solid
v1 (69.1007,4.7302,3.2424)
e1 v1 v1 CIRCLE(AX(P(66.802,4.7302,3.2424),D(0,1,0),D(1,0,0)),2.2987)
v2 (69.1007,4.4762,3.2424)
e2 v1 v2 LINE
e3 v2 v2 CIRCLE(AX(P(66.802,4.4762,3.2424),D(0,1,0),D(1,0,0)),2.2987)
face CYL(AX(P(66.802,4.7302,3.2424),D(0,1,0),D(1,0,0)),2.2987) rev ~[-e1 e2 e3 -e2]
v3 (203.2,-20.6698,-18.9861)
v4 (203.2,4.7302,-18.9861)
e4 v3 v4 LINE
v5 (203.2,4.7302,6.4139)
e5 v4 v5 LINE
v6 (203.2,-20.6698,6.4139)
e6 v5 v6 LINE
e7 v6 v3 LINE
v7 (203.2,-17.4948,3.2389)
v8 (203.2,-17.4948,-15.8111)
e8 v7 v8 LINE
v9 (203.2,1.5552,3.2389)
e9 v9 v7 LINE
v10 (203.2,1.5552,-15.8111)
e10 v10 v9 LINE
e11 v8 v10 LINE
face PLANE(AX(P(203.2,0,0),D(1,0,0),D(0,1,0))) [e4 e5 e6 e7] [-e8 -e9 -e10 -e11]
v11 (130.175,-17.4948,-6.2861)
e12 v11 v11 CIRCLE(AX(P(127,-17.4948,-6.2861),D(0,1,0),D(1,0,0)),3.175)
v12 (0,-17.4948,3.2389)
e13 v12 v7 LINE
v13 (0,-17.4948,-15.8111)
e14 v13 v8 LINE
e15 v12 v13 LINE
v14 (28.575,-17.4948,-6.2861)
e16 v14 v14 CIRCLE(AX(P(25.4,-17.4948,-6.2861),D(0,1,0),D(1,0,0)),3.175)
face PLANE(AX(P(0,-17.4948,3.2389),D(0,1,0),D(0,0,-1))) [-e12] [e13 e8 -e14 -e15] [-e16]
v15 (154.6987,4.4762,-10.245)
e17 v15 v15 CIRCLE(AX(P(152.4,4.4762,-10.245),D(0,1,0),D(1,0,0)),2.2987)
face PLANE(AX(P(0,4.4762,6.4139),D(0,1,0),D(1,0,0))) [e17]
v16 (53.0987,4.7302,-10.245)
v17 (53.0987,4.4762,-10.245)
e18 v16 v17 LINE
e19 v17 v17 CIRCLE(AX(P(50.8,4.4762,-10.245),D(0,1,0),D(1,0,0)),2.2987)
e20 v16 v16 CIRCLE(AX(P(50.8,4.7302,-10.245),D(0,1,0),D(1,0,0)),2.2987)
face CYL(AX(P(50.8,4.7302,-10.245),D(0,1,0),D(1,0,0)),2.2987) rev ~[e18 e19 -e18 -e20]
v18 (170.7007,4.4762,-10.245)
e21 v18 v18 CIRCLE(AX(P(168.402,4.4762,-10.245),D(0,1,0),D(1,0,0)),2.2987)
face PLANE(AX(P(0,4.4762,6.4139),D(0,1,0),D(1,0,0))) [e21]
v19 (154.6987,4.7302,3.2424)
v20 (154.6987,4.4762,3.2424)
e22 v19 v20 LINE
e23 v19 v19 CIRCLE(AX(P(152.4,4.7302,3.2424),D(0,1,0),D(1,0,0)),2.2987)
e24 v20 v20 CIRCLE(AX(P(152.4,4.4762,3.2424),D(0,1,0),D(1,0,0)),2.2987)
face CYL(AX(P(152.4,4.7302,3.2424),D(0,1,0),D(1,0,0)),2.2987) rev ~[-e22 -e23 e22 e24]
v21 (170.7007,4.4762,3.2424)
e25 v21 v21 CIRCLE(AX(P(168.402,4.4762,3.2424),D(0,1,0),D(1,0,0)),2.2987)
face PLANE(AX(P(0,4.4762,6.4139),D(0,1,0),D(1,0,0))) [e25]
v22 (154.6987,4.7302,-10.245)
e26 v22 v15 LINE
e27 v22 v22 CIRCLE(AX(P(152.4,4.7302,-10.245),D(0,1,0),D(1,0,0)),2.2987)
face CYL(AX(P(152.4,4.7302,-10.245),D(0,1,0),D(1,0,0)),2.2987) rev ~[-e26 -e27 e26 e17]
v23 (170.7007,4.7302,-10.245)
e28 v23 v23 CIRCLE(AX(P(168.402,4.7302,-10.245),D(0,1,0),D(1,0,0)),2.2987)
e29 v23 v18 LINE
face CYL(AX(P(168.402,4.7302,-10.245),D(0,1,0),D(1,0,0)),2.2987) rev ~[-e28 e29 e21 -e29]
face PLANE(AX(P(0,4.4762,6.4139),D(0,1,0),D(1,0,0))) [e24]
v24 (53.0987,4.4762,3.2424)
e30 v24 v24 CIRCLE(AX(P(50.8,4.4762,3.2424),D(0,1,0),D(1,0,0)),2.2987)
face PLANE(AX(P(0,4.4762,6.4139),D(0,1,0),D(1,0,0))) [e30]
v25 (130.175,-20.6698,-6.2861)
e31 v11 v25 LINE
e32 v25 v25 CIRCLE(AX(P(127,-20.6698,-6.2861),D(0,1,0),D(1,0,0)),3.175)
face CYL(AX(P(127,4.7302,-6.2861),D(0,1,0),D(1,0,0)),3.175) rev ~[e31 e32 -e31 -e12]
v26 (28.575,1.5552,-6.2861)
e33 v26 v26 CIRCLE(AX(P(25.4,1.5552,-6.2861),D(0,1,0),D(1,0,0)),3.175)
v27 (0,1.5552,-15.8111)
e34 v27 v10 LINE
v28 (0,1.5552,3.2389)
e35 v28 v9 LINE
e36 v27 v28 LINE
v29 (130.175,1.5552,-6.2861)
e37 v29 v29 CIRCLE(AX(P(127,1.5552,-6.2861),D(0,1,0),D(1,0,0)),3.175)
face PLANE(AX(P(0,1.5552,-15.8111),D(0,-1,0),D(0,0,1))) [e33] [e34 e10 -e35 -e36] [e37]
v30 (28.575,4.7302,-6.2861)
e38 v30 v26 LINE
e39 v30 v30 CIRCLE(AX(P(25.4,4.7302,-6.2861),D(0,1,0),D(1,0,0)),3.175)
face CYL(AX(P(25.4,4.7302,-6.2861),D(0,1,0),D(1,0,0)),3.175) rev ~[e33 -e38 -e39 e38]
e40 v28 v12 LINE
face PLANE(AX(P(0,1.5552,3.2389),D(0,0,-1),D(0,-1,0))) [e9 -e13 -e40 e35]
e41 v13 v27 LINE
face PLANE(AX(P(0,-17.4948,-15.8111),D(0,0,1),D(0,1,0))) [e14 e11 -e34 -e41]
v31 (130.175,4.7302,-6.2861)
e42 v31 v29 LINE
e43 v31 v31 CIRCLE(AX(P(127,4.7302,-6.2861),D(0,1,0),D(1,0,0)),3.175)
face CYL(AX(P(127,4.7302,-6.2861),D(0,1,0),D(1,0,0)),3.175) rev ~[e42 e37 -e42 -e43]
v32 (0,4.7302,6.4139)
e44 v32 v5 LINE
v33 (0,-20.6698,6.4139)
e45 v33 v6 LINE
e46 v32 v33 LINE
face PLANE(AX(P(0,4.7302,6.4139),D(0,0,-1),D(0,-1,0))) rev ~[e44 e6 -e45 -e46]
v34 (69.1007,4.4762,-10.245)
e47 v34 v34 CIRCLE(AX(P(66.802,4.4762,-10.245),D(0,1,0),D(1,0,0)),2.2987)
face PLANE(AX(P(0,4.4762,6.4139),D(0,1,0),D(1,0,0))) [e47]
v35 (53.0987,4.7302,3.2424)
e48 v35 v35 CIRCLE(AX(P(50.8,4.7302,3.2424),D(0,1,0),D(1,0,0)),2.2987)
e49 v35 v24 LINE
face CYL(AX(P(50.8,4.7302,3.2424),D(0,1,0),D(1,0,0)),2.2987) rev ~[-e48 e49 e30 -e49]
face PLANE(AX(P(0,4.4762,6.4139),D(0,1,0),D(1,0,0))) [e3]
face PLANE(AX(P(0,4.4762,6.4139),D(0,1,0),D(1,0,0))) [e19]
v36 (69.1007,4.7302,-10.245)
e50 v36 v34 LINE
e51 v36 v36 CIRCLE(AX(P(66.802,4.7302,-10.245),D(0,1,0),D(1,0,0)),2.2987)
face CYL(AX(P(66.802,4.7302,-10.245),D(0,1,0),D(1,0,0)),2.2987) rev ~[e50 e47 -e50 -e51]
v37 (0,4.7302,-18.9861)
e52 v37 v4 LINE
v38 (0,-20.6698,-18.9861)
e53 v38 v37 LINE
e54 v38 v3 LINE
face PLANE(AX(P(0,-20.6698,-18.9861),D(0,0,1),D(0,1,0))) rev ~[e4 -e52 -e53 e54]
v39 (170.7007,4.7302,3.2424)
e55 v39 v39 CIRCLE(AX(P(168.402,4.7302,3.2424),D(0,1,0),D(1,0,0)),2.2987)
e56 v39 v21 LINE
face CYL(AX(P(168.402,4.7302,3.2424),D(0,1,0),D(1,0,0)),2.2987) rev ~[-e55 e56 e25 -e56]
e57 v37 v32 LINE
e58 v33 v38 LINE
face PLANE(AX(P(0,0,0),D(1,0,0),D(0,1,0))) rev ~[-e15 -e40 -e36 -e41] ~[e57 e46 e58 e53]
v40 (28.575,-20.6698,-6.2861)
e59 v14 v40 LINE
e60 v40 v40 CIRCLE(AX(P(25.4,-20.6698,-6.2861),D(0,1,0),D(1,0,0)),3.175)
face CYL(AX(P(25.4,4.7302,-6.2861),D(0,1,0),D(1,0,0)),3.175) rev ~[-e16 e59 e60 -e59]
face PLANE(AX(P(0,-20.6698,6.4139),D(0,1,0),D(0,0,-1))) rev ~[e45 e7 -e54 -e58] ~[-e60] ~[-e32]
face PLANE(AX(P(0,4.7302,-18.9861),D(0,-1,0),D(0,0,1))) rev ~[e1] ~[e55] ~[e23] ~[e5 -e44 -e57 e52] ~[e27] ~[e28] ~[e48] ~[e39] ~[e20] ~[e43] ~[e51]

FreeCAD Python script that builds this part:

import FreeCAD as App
import Part
import Sketcher
Q = App.Units.Quantity


def add_polygon(sketch, points):
    """Adds a closed chain of lines whose ends are joined by coincident constraints."""
    first, n = sketch.GeometryCount, len(points)
    for a, b in zip(points, points[1:] + points[:1]):
        sketch.addGeometry(Part.LineSegment(App.Vector(*a, 0), App.Vector(*b, 0)), False)
    for i in range(n):
        sketch.addConstraint(Sketcher.Constraint("Coincident", first + i, 2, first + (i + 1) % n, 1))

doc = App.newDocument("Part")
body = doc.addObject("PartDesign::Body", "Body")

# Sketch on YZ plane
sketch1 = body.newObject("Sketcher::SketchObject", "Sketch")
sketch1.AttachmentSupport = (doc.getObject("YZ_Plane"), [""])
sketch1.MapMode = "FlatFace"
add_polygon(sketch1, [(5, -19), (5, 6), (-21, 6), (-21, -19)])  # lines 0-3
add_polygon(sketch1, [(-17, 3), (2, 3), (2, -16), (-17, -16)])  # lines 4-7
sketch1.addConstraint([
    Sketcher.Constraint("Vertical", 0),
    Sketcher.Constraint("Horizontal", 1),
    Sketcher.Constraint("Vertical", 2),
    Sketcher.Constraint("Horizontal", 3),
    Sketcher.Constraint("Horizontal", 4),
    Sketcher.Constraint("Vertical", 5),
    Sketcher.Constraint("Horizontal", 6),
    Sketcher.Constraint("Vertical", 7),
    Sketcher.Constraint("Equal", 3, 0),
    Sketcher.Constraint("Equal", 6, 5),
    Sketcher.Constraint("DistanceX", 1, 2, 1, 1, Q("1 in")),
    Sketcher.Constraint("DistanceX", 4, 2, 0, 2, Q("0.125 in")),
    Sketcher.Constraint("DistanceY", 4, 2, 0, 2, Q("0.125 in")),
    Sketcher.Constraint("DistanceY", 3, 2, 5, 2, Q("0.125 in")),
    Sketcher.Constraint("DistanceX", -1, 1, 0, 2, Q("4.7302 mm")),
    Sketcher.Constraint("DistanceY", -1, 1, 0, 2, Q("6.414 mm")),
])
pad1 = body.newObject("PartDesign::Pad", "Pad")
pad1.Profile = sketch1
pad1.Length = Q("8 in")

# Sketch on XZ plane
sketch2 = body.newObject("Sketcher::SketchObject", "Sketch001")
sketch2.AttachmentSupport = (doc.getObject("XZ_Plane"), [""])
sketch2.MapMode = "FlatFace"
sketch2.AttachmentOffset = App.Placement(App.Vector(0, 0, -4.7302), App.Rotation())
sketch2.addGeometry([
    Part.Circle(App.Vector(25.4, -6.3, 0), App.Vector(0, 0, 1), 3.2),
    Part.Circle(App.Vector(127, -6.3, 0), App.Vector(0, 0, 1), 3.2),
], False)
sketch2.addConstraint([
    Sketcher.Constraint("Equal", 0, 1),
    Sketcher.Constraint("Horizontal", 0, 3, 1, 3),
    Sketcher.Constraint("Diameter", 0, Q("0.25 in")),
    Sketcher.Constraint("DistanceX", -1, 1, 0, 3, Q("1 in")),
    Sketcher.Constraint("DistanceX", -1, 1, 1, 3, Q("5 in")),
    Sketcher.Constraint("DistanceY", 0, 3, -1, 1, Q("6.286 mm")),
])
pocket1 = body.newObject("PartDesign::Pocket", "Pocket")
pocket1.Profile = sketch2
pocket1.Length = Q("8 in")
pocket1.Reversed = True

# Sketch on XZ plane
sketch3 = body.newObject("Sketcher::SketchObject", "Sketch002")
sketch3.AttachmentSupport = (doc.getObject("XZ_Plane"), [""])
sketch3.MapMode = "FlatFace"
sketch3.AttachmentOffset = App.Placement(App.Vector(0, 0, -4.7302), App.Rotation())
sketch3.addGeometry([
    Part.Circle(App.Vector(66.8, -10.2, 0), App.Vector(0, 0, 1), 2.3),  # 0
    Part.Circle(App.Vector(66.8, 3.2, 0), App.Vector(0, 0, 1), 2.3),  # 1
    Part.Circle(App.Vector(50.8, 3.2, 0), App.Vector(0, 0, 1), 2.3),  # 2
    Part.Circle(App.Vector(152.4, -10.2, 0), App.Vector(0, 0, 1), 2.3),  # 3
    Part.Circle(App.Vector(152.4, 3.2, 0), App.Vector(0, 0, 1), 2.3),  # 4
    Part.Circle(App.Vector(168.4, 3.2, 0), App.Vector(0, 0, 1), 2.3),  # 5
    Part.Circle(App.Vector(168.4, -10.2, 0), App.Vector(0, 0, 1), 2.3),  # 6
    Part.Circle(App.Vector(50.8, -10.2, 0), App.Vector(0, 0, 1), 2.3),  # 7
], False)
sketch3.addConstraint([
    Sketcher.Constraint("Equal", 0, 1),
    Sketcher.Constraint("Equal", 1, 2),
    Sketcher.Constraint("Equal", 2, 3),
    Sketcher.Constraint("Equal", 3, 4),
    Sketcher.Constraint("Equal", 4, 5),
    Sketcher.Constraint("Equal", 5, 6),
    Sketcher.Constraint("Equal", 6, 7),
    Sketcher.Constraint("Horizontal", 1, 3, 2, 3),
    Sketcher.Constraint("Horizontal", 0, 3, 3, 3),
    Sketcher.Constraint("Horizontal", 2, 3, 4, 3),
    Sketcher.Constraint("Horizontal", 4, 3, 5, 3),
    Sketcher.Constraint("Horizontal", 3, 3, 6, 3),
    Sketcher.Constraint("Horizontal", 6, 3, 7, 3),
    Sketcher.Constraint("Vertical", 0, 3, 1, 3),
    Sketcher.Constraint("Vertical", 3, 3, 4, 3),
    Sketcher.Constraint("Vertical", 5, 3, 6, 3),
    Sketcher.Constraint("Vertical", 2, 3, 7, 3),
    Sketcher.Constraint("Diameter", 0, Q("0.181 in")),
    Sketcher.Constraint("DistanceX", -1, 1, 2, 3, Q("2 in")),
    Sketcher.Constraint("DistanceX", -1, 1, 3, 3, Q("6 in")),
    Sketcher.Constraint("DistanceX", 1, 3, 5, 3, Q("4 in")),
    Sketcher.Constraint("DistanceX", -1, 1, 0, 3, Q("2.63 in")),
    Sketcher.Constraint("DistanceY", 0, 3, 1, 3, Q("0.531 in")),
    Sketcher.Constraint("DistanceY", 0, 3, -1, 1, Q("10.245 mm")),
])
pocket2 = body.newObject("PartDesign::Pocket", "Pocket001")
pocket2.Profile = sketch3
pocket2.Length = Q("0.01 in")
pocket2.Reversed = True

doc.recompute()
